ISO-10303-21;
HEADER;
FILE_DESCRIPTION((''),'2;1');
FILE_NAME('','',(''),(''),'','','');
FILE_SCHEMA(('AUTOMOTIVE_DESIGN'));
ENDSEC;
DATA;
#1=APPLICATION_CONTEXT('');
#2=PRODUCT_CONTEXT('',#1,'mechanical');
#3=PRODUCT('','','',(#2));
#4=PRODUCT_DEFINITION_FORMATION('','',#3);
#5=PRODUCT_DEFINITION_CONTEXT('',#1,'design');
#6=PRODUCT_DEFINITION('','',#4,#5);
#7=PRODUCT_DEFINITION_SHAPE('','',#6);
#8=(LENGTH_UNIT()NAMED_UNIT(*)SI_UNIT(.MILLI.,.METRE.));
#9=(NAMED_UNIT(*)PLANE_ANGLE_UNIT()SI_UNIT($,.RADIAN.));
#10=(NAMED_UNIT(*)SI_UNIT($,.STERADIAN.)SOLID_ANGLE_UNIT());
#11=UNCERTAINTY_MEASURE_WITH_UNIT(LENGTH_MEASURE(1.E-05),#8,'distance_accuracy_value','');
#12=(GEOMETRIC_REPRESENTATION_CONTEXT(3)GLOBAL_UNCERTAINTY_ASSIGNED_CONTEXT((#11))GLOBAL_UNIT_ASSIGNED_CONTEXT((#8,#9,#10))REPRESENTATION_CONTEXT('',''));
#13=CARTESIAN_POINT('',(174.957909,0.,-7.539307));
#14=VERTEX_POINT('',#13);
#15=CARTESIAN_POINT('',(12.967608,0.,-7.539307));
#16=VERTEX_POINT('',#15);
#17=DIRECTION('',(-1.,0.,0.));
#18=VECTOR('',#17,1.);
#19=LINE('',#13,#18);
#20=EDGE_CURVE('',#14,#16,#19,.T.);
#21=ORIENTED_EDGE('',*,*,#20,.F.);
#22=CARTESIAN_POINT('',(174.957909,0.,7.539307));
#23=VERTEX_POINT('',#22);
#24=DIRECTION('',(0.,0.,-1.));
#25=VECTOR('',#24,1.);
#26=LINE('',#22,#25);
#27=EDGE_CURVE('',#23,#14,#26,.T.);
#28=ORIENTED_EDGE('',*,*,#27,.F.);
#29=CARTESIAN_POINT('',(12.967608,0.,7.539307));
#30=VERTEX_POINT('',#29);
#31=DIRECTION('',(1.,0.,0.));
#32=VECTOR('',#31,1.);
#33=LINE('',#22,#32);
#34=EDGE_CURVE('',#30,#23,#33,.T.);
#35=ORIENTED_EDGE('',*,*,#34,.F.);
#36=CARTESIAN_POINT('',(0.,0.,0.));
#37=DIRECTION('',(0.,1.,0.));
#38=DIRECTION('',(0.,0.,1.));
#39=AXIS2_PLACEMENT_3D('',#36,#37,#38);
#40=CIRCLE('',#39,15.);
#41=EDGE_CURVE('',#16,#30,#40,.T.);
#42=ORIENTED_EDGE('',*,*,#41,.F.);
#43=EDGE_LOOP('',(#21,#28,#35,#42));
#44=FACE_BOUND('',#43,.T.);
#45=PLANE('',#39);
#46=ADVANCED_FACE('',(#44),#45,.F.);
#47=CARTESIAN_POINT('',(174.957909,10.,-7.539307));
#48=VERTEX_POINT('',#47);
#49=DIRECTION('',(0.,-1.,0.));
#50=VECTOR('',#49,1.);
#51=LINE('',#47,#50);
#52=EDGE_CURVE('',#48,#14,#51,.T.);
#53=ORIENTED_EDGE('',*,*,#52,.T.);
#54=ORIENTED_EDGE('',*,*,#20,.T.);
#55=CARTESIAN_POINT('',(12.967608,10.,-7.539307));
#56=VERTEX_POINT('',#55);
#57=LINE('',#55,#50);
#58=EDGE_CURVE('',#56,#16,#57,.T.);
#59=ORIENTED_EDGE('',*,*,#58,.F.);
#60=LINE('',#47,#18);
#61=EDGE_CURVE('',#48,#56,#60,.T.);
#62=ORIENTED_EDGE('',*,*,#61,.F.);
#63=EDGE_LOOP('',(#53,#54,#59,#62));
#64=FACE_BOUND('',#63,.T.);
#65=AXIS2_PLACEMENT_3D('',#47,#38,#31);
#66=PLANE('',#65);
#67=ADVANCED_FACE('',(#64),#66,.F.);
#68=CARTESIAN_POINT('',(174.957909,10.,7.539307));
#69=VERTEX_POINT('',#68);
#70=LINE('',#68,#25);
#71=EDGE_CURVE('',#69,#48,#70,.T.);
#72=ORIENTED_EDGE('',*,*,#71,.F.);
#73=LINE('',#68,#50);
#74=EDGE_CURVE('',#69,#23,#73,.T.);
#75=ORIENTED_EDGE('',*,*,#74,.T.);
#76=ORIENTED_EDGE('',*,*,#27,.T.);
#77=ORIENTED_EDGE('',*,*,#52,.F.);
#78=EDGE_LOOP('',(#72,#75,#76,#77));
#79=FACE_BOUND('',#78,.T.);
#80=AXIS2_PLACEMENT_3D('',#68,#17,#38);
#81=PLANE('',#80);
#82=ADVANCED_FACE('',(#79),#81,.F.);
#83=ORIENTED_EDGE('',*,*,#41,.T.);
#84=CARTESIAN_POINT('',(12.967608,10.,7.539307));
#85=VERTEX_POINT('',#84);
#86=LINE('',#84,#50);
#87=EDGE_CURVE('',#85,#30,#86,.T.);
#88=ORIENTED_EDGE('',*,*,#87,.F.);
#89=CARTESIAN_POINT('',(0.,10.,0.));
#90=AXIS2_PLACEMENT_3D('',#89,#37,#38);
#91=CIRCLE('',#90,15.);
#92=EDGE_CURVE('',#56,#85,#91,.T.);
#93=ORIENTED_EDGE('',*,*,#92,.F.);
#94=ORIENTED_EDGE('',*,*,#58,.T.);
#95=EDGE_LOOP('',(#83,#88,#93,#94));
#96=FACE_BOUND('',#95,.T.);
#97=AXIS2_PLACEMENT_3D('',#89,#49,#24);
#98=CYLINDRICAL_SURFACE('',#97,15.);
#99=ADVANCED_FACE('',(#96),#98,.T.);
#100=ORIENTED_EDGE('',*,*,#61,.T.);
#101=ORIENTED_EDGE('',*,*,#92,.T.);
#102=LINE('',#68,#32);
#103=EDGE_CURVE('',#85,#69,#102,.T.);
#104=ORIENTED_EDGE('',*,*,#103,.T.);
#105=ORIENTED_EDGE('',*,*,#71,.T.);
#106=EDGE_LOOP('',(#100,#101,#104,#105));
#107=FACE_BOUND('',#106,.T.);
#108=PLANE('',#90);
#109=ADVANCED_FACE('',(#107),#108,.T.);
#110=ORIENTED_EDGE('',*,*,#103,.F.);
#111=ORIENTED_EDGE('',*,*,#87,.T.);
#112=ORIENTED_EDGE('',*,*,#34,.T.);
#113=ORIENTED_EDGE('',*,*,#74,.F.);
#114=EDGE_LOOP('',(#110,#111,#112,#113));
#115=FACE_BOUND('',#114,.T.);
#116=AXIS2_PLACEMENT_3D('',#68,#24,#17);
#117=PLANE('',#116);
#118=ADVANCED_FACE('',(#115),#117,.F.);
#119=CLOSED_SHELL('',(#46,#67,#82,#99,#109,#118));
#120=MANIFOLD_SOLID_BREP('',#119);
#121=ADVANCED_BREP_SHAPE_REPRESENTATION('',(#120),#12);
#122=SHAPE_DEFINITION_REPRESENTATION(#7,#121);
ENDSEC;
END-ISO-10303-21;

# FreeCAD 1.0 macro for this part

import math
import FreeCAD as App
import Part
import Sketcher
from FreeCAD import Vector

doc = App.newDocument("Part")
params = doc.addObject("Spreadsheet::Sheet", "Params")
for row, (alias, value) in enumerate([
    ("sketch1_radius", "15 mm"),
    ("pad1_length", "10 mm"),
], start=1):
    params.set(f"A{row}", alias)
    params.set(f"B{row}", "=" + value)
    params.setAlias(f"B{row}", alias)

body = doc.addObject("PartDesign::Body", "Body")

sketch1 = doc.addObject("Sketcher::SketchObject", "Sketch")
body.addObject(sketch1)
sketch1.AttachmentSupport = (doc.XZ_Plane, [""])
sketch1.MapMode = "FlatFace"
sketch1.addGeometry([
    Part.LineSegment(Vector(12.967608, 7.539307, 0), Vector(174.957909, 7.539307, 0)),
    Part.LineSegment(Vector(174.957909, 7.539307, 0), Vector(174.957909, -7.539307, 0)),
    Part.LineSegment(Vector(174.957909, -7.539307, 0), Vector(12.967608, -7.539307, 0)),
    Part.ArcOfCircle(Part.Circle(Vector(0, 0, 0), Vector(0, 0, 1), 15), math.radians(30.17352), math.radians(329.82648)),
], False)
sketch1.addConstraint([
    Sketcher.Constraint("Coincident", 0, 2, 1, 1),
    Sketcher.Constraint("Coincident", 1, 2, 2, 1),
    Sketcher.Constraint("Coincident", 2, 2, 3, 2),
    Sketcher.Constraint("Coincident", 3, 1, 0, 1),
    Sketcher.Constraint("Horizontal", 0),
    Sketcher.Constraint("Vertical", 1),
    Sketcher.Constraint("Horizontal", 2),
    Sketcher.Constraint("Coincident", 3, 3, -1, 1),
    Sketcher.Constraint("Vertical", 2, 2, 3, 1),
    Sketcher.Constraint("Radius", 3, 15.0),
    Sketcher.Constraint("DistanceX", 0, 1, 0, 2, 161.990302),
    Sketcher.Constraint("DistanceY", 1, 2, 1, 1, 15.078614),
])
sketch1.setExpression("Constraints[9]", "Params.sketch1_radius")
pad1 = doc.addObject("PartDesign::Pad", "Pad")
body.addObject(pad1)
pad1.Profile = sketch1
pad1.setExpression("Length", "Params.pad1_length")
pad1.Reversed = True

doc.recompute()
